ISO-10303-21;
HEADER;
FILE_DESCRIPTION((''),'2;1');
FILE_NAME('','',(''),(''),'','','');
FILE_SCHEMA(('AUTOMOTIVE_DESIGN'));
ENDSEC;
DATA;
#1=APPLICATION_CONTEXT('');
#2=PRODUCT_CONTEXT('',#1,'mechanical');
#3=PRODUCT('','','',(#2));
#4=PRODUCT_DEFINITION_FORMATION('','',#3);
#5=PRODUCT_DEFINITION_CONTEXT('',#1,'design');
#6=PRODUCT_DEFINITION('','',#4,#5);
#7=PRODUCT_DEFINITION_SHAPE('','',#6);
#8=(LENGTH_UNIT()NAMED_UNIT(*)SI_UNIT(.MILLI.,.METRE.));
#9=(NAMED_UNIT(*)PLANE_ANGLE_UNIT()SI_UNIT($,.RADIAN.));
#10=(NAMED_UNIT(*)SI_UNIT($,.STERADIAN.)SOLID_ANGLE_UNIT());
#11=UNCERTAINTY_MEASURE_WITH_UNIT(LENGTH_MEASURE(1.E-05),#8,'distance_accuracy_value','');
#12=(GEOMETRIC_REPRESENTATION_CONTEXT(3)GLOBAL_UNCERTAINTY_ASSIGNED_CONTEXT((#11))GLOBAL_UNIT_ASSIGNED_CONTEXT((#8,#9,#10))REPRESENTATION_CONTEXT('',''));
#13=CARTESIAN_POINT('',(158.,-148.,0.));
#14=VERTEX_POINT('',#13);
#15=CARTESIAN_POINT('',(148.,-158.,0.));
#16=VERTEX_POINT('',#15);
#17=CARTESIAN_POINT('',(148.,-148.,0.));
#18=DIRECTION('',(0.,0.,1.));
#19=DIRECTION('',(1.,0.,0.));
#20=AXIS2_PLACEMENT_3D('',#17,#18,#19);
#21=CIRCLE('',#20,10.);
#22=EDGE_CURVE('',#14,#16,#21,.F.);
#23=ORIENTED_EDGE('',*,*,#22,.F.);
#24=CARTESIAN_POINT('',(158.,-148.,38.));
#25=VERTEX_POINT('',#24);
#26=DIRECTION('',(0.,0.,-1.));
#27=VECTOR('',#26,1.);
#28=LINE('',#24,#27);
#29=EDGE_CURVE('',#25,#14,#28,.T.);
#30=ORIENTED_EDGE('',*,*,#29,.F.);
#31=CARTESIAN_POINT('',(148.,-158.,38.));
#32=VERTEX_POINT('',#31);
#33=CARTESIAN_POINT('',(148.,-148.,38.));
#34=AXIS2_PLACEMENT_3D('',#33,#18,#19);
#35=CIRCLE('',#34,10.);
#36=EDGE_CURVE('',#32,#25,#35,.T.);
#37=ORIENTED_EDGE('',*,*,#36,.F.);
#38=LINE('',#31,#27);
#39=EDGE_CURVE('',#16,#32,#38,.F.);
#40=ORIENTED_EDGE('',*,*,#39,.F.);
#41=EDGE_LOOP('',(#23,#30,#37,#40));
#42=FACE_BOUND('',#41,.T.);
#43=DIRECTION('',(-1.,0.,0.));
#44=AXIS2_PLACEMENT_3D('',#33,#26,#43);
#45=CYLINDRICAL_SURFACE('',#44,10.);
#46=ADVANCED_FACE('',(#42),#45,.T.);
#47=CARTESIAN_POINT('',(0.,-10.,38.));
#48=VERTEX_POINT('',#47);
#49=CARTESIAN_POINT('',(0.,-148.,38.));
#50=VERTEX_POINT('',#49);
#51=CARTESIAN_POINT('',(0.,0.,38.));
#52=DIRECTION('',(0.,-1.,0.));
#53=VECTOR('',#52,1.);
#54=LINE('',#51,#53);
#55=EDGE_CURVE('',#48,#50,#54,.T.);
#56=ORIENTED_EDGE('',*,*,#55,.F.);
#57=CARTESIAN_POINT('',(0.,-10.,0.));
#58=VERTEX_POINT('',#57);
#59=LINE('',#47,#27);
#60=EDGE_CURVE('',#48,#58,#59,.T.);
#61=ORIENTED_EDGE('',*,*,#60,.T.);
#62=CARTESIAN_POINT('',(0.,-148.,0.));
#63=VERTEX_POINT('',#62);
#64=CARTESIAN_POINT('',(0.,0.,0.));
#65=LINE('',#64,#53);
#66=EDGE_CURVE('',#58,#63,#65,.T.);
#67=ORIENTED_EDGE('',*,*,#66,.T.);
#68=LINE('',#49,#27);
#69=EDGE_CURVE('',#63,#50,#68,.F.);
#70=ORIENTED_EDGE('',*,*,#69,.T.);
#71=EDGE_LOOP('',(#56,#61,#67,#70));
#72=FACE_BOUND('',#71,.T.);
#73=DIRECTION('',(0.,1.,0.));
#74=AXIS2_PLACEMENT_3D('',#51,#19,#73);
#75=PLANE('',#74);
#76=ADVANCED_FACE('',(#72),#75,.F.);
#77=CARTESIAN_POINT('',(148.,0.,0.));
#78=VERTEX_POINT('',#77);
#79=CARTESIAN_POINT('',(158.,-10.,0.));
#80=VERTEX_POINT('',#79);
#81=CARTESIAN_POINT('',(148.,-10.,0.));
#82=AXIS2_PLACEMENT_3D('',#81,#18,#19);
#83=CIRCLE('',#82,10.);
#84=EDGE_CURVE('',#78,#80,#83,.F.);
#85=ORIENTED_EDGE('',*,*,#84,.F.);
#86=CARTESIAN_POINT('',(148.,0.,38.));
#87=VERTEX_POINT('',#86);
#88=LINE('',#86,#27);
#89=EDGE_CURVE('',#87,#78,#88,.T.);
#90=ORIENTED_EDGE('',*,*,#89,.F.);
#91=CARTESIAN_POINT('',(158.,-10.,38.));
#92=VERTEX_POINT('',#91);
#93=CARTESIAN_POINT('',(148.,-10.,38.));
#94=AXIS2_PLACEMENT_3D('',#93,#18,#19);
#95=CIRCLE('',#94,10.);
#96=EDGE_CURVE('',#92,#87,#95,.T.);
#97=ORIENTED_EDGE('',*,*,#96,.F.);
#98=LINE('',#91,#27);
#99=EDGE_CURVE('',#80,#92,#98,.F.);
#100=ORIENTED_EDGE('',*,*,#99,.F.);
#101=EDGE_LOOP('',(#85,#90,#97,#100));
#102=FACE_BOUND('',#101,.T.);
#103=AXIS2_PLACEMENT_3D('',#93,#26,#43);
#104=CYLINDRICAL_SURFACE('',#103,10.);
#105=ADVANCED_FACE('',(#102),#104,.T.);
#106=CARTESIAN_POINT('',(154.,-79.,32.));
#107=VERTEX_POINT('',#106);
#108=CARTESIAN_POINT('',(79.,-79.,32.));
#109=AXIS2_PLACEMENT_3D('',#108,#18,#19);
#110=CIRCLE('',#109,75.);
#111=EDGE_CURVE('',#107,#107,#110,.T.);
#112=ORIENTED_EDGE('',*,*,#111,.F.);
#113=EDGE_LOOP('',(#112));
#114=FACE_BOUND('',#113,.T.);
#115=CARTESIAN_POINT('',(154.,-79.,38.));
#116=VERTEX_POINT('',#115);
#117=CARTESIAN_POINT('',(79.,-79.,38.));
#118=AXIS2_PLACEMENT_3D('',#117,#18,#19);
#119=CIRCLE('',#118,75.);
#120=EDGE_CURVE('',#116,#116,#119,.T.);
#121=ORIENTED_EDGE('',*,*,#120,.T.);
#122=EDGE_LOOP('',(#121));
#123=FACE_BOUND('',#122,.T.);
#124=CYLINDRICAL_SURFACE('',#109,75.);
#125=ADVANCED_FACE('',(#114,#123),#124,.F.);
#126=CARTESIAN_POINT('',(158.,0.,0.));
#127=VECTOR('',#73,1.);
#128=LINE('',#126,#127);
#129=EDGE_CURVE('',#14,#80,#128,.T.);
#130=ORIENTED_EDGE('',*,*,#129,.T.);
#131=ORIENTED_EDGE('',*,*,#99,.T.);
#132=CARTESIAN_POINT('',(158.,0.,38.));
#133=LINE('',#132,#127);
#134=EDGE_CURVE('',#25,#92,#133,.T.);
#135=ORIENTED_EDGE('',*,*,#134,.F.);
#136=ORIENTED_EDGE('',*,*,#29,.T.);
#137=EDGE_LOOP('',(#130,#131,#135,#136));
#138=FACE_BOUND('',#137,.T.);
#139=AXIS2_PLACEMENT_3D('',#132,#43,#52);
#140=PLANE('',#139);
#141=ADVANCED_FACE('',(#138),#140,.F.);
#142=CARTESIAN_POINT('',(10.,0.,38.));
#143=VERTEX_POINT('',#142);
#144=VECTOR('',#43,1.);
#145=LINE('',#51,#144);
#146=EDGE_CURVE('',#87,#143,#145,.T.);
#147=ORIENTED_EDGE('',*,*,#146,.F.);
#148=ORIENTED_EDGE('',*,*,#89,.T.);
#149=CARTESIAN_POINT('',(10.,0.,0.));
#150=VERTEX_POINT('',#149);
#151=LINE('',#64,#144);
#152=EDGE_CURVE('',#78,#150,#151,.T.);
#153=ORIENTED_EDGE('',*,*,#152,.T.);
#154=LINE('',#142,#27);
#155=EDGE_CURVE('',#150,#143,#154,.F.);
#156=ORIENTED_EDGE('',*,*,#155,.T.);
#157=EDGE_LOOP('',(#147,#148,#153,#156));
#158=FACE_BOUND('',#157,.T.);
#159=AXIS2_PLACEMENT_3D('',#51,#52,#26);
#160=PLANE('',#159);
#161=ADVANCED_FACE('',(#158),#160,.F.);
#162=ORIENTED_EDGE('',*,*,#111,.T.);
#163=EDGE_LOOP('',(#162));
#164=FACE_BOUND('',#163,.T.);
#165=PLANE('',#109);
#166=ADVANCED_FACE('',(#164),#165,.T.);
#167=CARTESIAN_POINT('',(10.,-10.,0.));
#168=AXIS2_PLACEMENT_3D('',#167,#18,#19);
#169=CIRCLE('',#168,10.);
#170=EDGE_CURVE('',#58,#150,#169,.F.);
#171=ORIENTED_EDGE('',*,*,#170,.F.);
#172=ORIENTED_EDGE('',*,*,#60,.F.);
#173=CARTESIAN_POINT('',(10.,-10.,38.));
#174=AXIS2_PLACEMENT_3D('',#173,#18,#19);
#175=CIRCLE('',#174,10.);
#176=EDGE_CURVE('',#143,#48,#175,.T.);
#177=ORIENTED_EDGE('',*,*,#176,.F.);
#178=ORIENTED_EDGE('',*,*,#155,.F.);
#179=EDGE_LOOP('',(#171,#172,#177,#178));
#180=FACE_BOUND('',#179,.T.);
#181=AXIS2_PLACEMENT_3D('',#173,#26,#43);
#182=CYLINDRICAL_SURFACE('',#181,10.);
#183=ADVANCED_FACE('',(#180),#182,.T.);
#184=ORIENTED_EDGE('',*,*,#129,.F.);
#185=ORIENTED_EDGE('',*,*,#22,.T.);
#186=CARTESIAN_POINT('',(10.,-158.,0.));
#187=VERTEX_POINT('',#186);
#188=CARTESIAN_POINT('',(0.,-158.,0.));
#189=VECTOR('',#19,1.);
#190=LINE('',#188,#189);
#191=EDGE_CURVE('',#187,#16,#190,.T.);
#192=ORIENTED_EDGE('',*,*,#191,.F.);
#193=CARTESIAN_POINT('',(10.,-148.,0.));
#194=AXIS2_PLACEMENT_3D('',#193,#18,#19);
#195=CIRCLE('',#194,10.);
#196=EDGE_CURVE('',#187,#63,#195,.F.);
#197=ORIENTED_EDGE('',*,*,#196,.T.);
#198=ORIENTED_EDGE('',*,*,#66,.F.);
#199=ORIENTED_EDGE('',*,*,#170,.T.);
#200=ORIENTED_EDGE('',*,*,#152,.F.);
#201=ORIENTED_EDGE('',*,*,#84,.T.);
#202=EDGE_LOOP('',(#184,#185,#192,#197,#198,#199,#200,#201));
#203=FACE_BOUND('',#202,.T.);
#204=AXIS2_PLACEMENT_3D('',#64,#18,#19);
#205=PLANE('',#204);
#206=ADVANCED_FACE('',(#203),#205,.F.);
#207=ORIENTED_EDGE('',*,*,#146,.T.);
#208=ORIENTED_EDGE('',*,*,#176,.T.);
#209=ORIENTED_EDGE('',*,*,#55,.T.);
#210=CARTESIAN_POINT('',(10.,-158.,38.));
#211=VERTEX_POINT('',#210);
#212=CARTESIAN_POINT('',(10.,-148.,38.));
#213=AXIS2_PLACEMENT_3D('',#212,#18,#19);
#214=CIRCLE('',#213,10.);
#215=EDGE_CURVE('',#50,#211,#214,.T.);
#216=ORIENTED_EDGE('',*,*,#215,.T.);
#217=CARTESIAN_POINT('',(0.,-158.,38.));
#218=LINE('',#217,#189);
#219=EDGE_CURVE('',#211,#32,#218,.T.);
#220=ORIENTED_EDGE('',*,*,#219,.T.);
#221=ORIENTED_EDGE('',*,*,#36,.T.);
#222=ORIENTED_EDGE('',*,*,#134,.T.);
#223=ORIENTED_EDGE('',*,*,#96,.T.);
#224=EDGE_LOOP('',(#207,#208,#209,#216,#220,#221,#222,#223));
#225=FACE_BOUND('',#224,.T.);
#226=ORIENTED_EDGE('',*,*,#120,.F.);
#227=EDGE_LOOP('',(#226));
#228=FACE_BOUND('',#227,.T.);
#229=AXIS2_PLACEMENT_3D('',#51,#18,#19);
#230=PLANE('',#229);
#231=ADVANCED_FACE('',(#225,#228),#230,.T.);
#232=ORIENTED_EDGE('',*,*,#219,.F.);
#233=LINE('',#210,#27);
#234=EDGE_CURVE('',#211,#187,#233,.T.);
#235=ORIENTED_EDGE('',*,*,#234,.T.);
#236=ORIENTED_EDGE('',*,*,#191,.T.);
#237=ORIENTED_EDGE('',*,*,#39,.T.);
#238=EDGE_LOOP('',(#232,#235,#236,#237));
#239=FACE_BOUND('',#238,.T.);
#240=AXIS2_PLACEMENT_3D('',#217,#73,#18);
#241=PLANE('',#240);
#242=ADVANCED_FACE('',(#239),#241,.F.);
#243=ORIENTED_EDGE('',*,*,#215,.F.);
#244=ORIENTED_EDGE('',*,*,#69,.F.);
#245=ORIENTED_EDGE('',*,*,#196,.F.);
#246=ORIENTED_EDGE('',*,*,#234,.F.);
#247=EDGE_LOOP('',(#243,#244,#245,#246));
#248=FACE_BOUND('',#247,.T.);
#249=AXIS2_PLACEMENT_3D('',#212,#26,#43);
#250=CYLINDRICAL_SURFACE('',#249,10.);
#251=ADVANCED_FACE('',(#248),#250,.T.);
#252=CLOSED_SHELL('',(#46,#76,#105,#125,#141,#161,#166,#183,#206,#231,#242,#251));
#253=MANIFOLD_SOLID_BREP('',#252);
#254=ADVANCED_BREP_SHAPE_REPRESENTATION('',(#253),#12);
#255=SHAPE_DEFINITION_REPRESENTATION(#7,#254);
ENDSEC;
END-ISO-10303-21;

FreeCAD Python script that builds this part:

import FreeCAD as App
import Part
import Sketcher

V = App.Vector
Q = App.Units.Quantity


def edges_at(feature, points):
    """Names of the edges that pass closest to the given points."""
    edges = feature.Shape.Edges
    near = lambda p: min(range(len(edges)), key=lambda i: edges[i].distToShape(Part.Vertex(*p))[0])
    return sorted({f"Edge{near(p) + 1}" for p in points})


def add_polygon(sketch, points):
    """Adds a closed chain of lines whose ends are joined by coincident constraints."""
    first, n = sketch.GeometryCount, len(points)
    for a, b in zip(points, points[1:] + points[:1]):
        sketch.addGeometry(Part.LineSegment(App.Vector(*a, 0), App.Vector(*b, 0)), False)
    for i in range(n):
        sketch.addConstraint(Sketcher.Constraint("Coincident", first + i, 2, first + (i + 1) % n, 1))

doc = App.newDocument("Part")
body = doc.addObject("PartDesign::Body", "Body")

# Sketch on XY plane
sketch1 = doc.addObject("Sketcher::SketchObject", "Sketch")
body.addObject(sketch1)
sketch1.AttachmentSupport = (doc.XY_Plane, [""])
sketch1.MapMode = "FlatFace"
add_polygon(sketch1, [(0, 0), (0, -158), (158, -158), (158, 0)])  # lines 0-3
sketch1.addConstraint([
    Sketcher.Constraint("Vertical", 0),
    Sketcher.Constraint("Horizontal", 1),
    Sketcher.Constraint("Vertical", 2),
    Sketcher.Constraint("Horizontal", 3),
    Sketcher.Constraint("Coincident", 3, 2, -1, 1),
    Sketcher.Constraint("Equal", 3, 0),
    Sketcher.Constraint("DistanceX", 1, 1, 1, 2, Q("158 mm")),
])
pad1 = doc.addObject("PartDesign::Pad", "Pad")
body.addObject(pad1)
pad1.Profile = sketch1
pad1.Length = 38

# Sketch on XY plane
sketch2 = doc.addObject("Sketcher::SketchObject", "Sketch001")
body.addObject(sketch2)
sketch2.AttachmentSupport = (doc.XY_Plane, [""])
sketch2.MapMode = "FlatFace"
sketch2.AttachmentOffset = App.Placement(V(0, 0, 38), App.Rotation())
sketch2.addGeometry(Part.Circle(V(79, -79, 0), V(0, 0, 1), 75), False)
sketch2.addConstraint([
    Sketcher.Constraint("Diameter", 0, Q("150 mm")),
    Sketcher.Constraint("DistanceX", -1, 1, 0, 3, Q("79 mm")),
    Sketcher.Constraint("DistanceY", 0, 3, -1, 1, Q("79 mm")),
])
pocket1 = doc.addObject("PartDesign::Pocket", "Pocket")
body.addObject(pocket1)
pocket1.Profile = sketch2
pocket1.Length = 6
doc.recompute()

fillet = doc.addObject("PartDesign::Fillet", "Fillet")
body.addObject(fillet)
fillet.Base = (pocket1, edges_at(pocket1, [
    (0, 0, 19),
    (158, 0, 19),
    (158, -158, 19),
    (0, -158, 19),
]))
fillet.Radius = 10

doc.recompute()
